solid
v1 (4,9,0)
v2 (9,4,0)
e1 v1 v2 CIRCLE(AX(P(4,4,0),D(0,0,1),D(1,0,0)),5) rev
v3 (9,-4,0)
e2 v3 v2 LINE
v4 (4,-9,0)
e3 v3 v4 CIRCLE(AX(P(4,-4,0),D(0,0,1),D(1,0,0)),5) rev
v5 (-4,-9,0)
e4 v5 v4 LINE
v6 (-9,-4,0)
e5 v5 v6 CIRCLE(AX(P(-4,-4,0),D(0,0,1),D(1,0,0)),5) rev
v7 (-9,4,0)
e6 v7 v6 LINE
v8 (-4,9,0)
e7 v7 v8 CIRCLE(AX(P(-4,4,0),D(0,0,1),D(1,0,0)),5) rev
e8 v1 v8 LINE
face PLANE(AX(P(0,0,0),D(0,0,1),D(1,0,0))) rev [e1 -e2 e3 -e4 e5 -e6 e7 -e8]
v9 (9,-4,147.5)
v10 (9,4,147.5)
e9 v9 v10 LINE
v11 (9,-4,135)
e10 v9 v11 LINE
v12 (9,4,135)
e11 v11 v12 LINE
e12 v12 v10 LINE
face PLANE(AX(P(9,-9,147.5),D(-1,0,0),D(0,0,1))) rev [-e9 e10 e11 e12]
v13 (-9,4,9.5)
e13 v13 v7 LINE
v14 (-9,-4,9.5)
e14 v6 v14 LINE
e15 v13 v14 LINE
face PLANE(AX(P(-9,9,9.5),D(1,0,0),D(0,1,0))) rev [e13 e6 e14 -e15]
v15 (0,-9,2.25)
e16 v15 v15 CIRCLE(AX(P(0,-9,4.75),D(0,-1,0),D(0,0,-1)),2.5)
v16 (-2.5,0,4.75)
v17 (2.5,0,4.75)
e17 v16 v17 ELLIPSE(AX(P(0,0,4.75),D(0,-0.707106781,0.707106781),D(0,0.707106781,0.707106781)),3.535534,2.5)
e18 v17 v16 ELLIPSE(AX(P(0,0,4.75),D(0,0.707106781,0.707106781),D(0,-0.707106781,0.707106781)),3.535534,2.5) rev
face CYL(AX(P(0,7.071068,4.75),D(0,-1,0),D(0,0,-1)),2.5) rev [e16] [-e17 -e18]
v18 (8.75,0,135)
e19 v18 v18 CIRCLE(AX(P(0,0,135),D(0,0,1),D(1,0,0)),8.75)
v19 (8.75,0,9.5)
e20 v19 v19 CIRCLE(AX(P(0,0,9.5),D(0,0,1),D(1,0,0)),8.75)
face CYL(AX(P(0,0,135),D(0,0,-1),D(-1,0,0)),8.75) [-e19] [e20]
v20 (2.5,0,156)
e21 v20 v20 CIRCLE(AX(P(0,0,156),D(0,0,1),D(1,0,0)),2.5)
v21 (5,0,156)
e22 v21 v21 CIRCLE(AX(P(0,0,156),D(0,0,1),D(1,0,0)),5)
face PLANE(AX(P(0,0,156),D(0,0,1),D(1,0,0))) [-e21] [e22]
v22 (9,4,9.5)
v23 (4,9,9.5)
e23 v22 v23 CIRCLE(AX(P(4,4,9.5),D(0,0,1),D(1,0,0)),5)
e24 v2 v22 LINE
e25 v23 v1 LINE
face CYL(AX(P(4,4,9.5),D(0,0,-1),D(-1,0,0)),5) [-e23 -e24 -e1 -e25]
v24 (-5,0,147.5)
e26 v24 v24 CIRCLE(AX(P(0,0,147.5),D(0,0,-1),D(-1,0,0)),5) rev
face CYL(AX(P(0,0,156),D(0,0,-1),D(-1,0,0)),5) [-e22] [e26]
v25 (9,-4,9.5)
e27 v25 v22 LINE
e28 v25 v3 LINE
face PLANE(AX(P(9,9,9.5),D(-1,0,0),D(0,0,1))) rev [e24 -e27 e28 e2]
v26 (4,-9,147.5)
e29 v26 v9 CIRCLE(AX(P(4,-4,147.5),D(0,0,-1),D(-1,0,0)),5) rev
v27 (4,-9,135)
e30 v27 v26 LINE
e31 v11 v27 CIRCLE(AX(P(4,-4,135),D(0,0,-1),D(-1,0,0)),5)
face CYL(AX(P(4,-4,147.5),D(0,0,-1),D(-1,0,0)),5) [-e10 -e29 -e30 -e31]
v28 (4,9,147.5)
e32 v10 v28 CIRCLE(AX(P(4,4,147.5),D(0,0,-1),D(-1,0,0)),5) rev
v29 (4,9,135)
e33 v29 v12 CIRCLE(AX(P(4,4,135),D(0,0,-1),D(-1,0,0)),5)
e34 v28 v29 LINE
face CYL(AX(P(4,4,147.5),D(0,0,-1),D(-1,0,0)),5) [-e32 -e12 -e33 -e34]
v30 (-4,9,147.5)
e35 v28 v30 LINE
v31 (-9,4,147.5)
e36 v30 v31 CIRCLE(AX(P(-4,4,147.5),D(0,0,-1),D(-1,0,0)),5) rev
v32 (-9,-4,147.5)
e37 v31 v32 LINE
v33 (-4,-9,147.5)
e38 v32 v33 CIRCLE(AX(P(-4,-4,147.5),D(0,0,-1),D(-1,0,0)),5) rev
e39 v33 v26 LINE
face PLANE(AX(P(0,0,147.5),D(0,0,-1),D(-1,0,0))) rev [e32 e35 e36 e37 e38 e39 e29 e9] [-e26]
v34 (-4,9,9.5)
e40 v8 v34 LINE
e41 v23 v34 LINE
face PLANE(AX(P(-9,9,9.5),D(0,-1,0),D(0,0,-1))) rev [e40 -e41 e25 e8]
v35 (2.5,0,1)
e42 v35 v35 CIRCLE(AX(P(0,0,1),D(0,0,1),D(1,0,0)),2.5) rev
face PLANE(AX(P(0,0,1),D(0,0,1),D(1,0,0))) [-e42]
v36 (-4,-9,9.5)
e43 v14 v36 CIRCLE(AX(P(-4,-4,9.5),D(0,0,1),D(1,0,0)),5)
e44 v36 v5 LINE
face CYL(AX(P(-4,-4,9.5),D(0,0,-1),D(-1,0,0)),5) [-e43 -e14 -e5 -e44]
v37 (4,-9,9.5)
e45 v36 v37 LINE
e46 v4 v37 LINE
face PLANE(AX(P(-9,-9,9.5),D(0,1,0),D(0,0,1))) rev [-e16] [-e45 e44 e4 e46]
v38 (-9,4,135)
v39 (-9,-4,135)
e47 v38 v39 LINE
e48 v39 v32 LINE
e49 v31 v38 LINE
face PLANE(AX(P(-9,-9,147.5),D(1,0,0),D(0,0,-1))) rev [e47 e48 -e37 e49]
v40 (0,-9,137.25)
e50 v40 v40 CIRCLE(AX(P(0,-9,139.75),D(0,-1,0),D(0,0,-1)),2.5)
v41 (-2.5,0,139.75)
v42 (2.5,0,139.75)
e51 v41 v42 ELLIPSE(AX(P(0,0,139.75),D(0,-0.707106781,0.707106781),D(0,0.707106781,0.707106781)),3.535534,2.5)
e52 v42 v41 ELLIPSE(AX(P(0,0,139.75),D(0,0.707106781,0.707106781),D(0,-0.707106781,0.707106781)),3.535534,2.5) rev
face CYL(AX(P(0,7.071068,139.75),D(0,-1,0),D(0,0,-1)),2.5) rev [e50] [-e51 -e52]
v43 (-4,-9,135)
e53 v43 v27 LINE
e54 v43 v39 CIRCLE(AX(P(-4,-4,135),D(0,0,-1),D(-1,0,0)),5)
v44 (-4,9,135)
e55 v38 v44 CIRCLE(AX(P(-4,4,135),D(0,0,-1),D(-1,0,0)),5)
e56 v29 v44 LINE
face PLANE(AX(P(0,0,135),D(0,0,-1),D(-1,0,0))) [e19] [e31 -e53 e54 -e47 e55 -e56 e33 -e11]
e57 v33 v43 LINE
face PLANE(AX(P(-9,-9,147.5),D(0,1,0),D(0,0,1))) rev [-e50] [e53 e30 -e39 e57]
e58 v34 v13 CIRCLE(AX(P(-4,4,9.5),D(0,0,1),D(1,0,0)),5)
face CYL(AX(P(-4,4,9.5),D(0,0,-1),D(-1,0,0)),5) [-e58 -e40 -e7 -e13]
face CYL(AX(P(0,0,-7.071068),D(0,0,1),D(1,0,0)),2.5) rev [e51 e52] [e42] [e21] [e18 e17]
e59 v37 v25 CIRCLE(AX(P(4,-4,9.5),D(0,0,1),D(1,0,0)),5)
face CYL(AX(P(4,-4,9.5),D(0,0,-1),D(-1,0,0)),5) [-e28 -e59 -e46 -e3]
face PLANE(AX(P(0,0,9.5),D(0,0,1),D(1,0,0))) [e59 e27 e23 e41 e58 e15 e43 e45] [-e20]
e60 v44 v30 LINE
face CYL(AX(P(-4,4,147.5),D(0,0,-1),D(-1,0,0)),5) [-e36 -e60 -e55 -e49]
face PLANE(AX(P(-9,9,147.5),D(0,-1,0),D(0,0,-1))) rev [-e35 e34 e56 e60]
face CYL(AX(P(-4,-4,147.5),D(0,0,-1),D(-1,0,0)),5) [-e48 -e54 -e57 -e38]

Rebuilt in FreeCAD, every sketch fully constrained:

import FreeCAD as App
import Part
import Sketcher
from FreeCAD import Vector


def edges_at(feature, points):
    """Names of the edges that pass closest to the given points."""
    edges = feature.Shape.Edges
    near = lambda p: min(range(len(edges)), key=lambda i: edges[i].distToShape(Part.Vertex(*p))[0])
    return sorted({f"Edge{near(p) + 1}" for p in points})


def add_polygon(sketch, points):
    """Adds a closed chain of lines whose ends are joined by coincident constraints."""
    first, n = sketch.GeometryCount, len(points)
    for a, b in zip(points, points[1:] + points[:1]):
        sketch.addGeometry(Part.LineSegment(App.Vector(*a, 0), App.Vector(*b, 0)), False)
    for i in range(n):
        sketch.addConstraint(Sketcher.Constraint("Coincident", first + i, 2, first + (i + 1) % n, 1))

doc = App.newDocument("Part")
body = doc.addObject("PartDesign::Body", "Body")

# Sketch on XY plane
sketch1 = body.newObject("Sketcher::SketchObject", "Sketch")
sketch1.AttachmentSupport = (doc.getObject("XY_Plane"), [""])
sketch1.MapMode = "FlatFace"
add_polygon(sketch1, [(-9, 9), (-9, -9), (9, -9), (9, 9)])  # lines 0-3
sketch1.addConstraint([
    Sketcher.Constraint("Vertical", 0),
    Sketcher.Constraint("Horizontal", 1),
    Sketcher.Constraint("Vertical", 2),
    Sketcher.Constraint("Horizontal", 3),
    Sketcher.Constraint("Symmetric", 0, 2, 2, 2, -1, 1),
    Sketcher.Constraint("Equal", 3, 0),
    Sketcher.Constraint("DistanceX", 1, 1, 1, 2, 18.0),
])
pad1 = body.newObject("PartDesign::Pad", "Pad")
pad1.Profile = sketch1
pad1.Length = 9.5

# Sketch on XY plane
sketch2 = body.newObject("Sketcher::SketchObject", "Sketch001")
sketch2.AttachmentSupport = (doc.getObject("XY_Plane"), [""])
sketch2.MapMode = "FlatFace"
sketch2.AttachmentOffset = App.Placement(Vector(0, 0, 9.5), App.Rotation())
sketch2.addGeometry(Part.Circle(Vector(0, 0, 0), Vector(0, 0, 1), 9), False)
sketch2.addConstraint([
    Sketcher.Constraint("Coincident", 0, 3, -1, 1),
    Sketcher.Constraint("Diameter", 0, 17.5),
])
pad2 = body.newObject("PartDesign::Pad", "Pad001")
pad2.Profile = sketch2
pad2.Length = 125.5

# Sketch on XY plane
sketch3 = body.newObject("Sketcher::SketchObject", "Sketch002")
sketch3.AttachmentSupport = (doc.getObject("XY_Plane"), [""])
sketch3.MapMode = "FlatFace"
sketch3.AttachmentOffset = App.Placement(Vector(0, 0, 135), App.Rotation())
add_polygon(sketch3, [(-9, 9), (-9, -9), (9, -9), (9, 9)])  # lines 0-3
sketch3.addConstraint([
    Sketcher.Constraint("Vertical", 0),
    Sketcher.Constraint("Horizontal", 1),
    Sketcher.Constraint("Vertical", 2),
    Sketcher.Constraint("Horizontal", 3),
    Sketcher.Constraint("Symmetric", 0, 2, 2, 2, -1, 1),
    Sketcher.Constraint("Equal", 3, 0),
    Sketcher.Constraint("DistanceX", 1, 1, 1, 2, 18.0),
])
pad3 = body.newObject("PartDesign::Pad", "Pad002")
pad3.Profile = sketch3
pad3.Length = 12.5

# Sketch on XY plane
sketch4 = body.newObject("Sketcher::SketchObject", "Sketch003")
sketch4.AttachmentSupport = (doc.getObject("XY_Plane"), [""])
sketch4.MapMode = "FlatFace"
sketch4.AttachmentOffset = App.Placement(Vector(0, 0, 147.5), App.Rotation())
sketch4.addGeometry(Part.Circle(Vector(0, 0, 0), Vector(0, 0, 1), 5), False)
sketch4.addConstraint([
    Sketcher.Constraint("Coincident", 0, 3, -1, 1),
    Sketcher.Constraint("Diameter", 0, 10.0),
])
pad4 = body.newObject("PartDesign::Pad", "Pad003")
pad4.Profile = sketch4
pad4.Length = 8.5

# Sketch on XY plane
sketch5 = body.newObject("Sketcher::SketchObject", "Sketch004")
sketch5.AttachmentSupport = (doc.getObject("XY_Plane"), [""])
sketch5.MapMode = "FlatFace"
sketch5.AttachmentOffset = App.Placement(Vector(0, 0, 156), App.Rotation())
sketch5.addGeometry(Part.Circle(Vector(0, 0, 0), Vector(0, 0, 1), 2.5), False)
sketch5.addConstraint([
    Sketcher.Constraint("Coincident", 0, 3, -1, 1),
    Sketcher.Constraint("Diameter", 0, 5.0),
])
pocket1 = body.newObject("PartDesign::Pocket", "Pocket")
pocket1.Profile = sketch5
pocket1.Length = 155
doc.recompute()

fillet = body.newObject("PartDesign::Fillet", "Fillet")
fillet.Base = (pocket1, edges_at(pocket1, [
    (9, -9, 141.25),
    (9, 9, 141.25),
    (-9, 9, 141.25),
    (-9, -9, 141.25),
    (9, -9, 4.75),
    (-9, -9, 4.75),
    (-9, 9, 4.75),
    (9, 9, 4.75),
]))
fillet.Radius = 5

# Sketch on XZ plane
sketch6 = body.newObject("Sketcher::SketchObject", "Sketch005")
sketch6.AttachmentSupport = (doc.getObject("XZ_Plane"), [""])
sketch6.MapMode = "FlatFace"
sketch6.AttachmentOffset = App.Placement(Vector(0, 0, 9), App.Rotation())
sketch6.addGeometry(Part.Circle(Vector(0, 4.8, 0), Vector(0, 0, 1), 2.5), False)
sketch6.addConstraint([
    Sketcher.Constraint("PointOnObject", 0, 3, -2),
    Sketcher.Constraint("Diameter", 0, 5.0),
    Sketcher.Constraint("DistanceY", -1, 1, 0, 3, 4.75),
])
pocket2 = body.newObject("PartDesign::Pocket", "Pocket001")
pocket2.Profile = sketch6
pocket2.Length = 9

# Sketch on XZ plane
sketch7 = body.newObject("Sketcher::SketchObject", "Sketch006")
sketch7.AttachmentSupport = (doc.getObject("XZ_Plane"), [""])
sketch7.MapMode = "FlatFace"
sketch7.AttachmentOffset = App.Placement(Vector(0, 0, 9), App.Rotation())
sketch7.addGeometry(Part.Circle(Vector(0, 139.8, 0), Vector(0, 0, 1), 2.5), False)
sketch7.addConstraint([
    Sketcher.Constraint("PointOnObject", 0, 3, -2),
    Sketcher.Constraint("Diameter", 0, 5.0),
    Sketcher.Constraint("DistanceY", -1, 1, 0, 3, 139.75),
])
pocket3 = body.newObject("PartDesign::Pocket", "Pocket002")
pocket3.Profile = sketch7
pocket3.Length = 9

doc.recompute()
